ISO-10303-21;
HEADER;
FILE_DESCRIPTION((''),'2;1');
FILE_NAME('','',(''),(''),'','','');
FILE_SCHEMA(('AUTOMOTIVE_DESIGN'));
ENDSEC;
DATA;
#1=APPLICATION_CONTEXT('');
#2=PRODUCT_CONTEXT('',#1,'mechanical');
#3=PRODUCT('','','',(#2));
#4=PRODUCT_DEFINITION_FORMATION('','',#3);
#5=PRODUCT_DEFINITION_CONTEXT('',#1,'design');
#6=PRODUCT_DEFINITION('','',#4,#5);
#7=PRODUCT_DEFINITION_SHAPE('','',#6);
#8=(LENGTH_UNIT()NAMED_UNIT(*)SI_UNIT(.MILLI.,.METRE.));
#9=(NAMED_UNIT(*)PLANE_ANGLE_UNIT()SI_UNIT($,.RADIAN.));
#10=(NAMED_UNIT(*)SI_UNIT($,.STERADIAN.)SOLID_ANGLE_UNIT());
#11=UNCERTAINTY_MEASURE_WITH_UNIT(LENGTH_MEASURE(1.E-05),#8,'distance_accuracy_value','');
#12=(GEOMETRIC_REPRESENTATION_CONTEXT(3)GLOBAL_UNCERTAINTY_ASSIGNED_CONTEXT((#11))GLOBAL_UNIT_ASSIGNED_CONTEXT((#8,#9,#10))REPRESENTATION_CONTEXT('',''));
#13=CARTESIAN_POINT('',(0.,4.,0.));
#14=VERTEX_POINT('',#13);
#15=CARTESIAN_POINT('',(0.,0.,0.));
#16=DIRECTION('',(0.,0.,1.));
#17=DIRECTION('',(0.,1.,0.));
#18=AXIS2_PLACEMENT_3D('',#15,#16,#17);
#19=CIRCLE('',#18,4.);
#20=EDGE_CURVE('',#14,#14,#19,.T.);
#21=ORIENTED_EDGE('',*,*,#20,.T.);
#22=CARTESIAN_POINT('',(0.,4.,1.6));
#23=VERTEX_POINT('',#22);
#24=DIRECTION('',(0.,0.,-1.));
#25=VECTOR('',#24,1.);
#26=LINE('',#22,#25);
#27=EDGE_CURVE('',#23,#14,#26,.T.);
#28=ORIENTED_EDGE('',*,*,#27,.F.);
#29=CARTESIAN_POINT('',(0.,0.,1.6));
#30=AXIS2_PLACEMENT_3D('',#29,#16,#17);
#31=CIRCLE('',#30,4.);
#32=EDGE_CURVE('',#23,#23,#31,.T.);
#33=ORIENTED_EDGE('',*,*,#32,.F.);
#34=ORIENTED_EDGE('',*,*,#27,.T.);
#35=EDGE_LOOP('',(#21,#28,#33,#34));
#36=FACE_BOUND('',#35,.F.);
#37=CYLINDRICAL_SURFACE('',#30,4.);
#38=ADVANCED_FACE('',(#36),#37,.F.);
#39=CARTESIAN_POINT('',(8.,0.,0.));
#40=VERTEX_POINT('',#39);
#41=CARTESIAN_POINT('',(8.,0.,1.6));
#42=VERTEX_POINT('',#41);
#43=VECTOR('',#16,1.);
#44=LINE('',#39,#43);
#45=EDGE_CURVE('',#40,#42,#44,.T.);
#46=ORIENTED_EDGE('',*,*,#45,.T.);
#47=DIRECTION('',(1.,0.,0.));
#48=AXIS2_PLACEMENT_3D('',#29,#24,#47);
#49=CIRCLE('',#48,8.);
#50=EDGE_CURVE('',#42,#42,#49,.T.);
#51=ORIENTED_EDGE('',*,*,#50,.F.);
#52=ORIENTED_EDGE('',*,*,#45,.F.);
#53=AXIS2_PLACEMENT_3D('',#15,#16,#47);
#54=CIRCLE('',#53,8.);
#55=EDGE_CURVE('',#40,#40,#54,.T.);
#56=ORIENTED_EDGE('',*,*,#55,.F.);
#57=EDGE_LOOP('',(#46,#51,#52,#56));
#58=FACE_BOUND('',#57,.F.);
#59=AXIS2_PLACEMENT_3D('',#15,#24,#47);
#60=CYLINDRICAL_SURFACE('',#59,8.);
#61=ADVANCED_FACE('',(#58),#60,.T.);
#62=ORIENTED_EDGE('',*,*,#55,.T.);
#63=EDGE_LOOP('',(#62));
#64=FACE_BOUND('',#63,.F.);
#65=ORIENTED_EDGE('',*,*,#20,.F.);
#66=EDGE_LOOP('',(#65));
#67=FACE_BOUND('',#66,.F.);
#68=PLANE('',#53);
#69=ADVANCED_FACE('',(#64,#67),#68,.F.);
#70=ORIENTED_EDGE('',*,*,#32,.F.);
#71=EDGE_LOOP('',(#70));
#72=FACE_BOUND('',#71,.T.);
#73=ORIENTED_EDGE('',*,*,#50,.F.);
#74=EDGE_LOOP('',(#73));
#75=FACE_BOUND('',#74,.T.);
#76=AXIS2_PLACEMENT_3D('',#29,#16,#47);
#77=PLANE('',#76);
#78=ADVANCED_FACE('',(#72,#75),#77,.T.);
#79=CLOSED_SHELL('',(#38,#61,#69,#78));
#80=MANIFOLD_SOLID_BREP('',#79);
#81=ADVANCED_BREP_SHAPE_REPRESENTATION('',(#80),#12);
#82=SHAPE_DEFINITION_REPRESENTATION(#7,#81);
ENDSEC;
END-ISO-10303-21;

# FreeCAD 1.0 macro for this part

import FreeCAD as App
import Part
import Sketcher

doc = App.newDocument("Part")
body = doc.addObject("PartDesign::Body", "Body")

# Sketch on XY plane
sketch1 = body.newObject("Sketcher::SketchObject", "Sketch")
sketch1.AttachmentSupport = (doc.getObject("XY_Plane"), [""])
sketch1.MapMode = "FlatFace"
sketch1.addGeometry([
    Part.Circle(App.Vector(0, 0, 0), App.Vector(0, 0, 1), 8),
    Part.Circle(App.Vector(0, 0, 0), App.Vector(0, 0, 1), 4.2),
], False)
sketch1.addConstraint([
    Sketcher.Constraint("Coincident", 0, 3, -1, 1),
    Sketcher.Constraint("Coincident", 1, 3, -1, 1),
    Sketcher.Constraint("Diameter", 0, 16.0),
    Sketcher.Constraint("Diameter", 1, 8.4),
])
pad1 = body.newObject("PartDesign::Pad", "Pad")
pad1.Profile = sketch1
pad1.Length = 1.6

# Sketch on XY plane
sketch2 = body.newObject("Sketcher::SketchObject", "Sketch001")
sketch2.AttachmentSupport = (doc.getObject("XY_Plane"), [""])
sketch2.MapMode = "FlatFace"
sketch2.AttachmentOffset = App.Placement(App.Vector(0, 0, 1.6), App.Rotation())
sketch2.addGeometry([
    Part.Circle(App.Vector(0, 0, 0), App.Vector(0, 0, 1), 8),
    Part.Circle(App.Vector(0, 0, 0), App.Vector(0, 0, 1), 4),
], False)
sketch2.addConstraint([
    Sketcher.Constraint("Coincident", 0, 3, -1, 1),
    Sketcher.Constraint("Coincident", 1, 3, -1, 1),
    Sketcher.Constraint("Diameter", 0, 16.0),
    Sketcher.Constraint("Diameter", 1, 8.0),
])
pad2 = body.newObject("PartDesign::Pad", "Pad001")
pad2.Profile = sketch2
pad2.Length = 1.6
pad2.Reversed = True

doc.recompute()
